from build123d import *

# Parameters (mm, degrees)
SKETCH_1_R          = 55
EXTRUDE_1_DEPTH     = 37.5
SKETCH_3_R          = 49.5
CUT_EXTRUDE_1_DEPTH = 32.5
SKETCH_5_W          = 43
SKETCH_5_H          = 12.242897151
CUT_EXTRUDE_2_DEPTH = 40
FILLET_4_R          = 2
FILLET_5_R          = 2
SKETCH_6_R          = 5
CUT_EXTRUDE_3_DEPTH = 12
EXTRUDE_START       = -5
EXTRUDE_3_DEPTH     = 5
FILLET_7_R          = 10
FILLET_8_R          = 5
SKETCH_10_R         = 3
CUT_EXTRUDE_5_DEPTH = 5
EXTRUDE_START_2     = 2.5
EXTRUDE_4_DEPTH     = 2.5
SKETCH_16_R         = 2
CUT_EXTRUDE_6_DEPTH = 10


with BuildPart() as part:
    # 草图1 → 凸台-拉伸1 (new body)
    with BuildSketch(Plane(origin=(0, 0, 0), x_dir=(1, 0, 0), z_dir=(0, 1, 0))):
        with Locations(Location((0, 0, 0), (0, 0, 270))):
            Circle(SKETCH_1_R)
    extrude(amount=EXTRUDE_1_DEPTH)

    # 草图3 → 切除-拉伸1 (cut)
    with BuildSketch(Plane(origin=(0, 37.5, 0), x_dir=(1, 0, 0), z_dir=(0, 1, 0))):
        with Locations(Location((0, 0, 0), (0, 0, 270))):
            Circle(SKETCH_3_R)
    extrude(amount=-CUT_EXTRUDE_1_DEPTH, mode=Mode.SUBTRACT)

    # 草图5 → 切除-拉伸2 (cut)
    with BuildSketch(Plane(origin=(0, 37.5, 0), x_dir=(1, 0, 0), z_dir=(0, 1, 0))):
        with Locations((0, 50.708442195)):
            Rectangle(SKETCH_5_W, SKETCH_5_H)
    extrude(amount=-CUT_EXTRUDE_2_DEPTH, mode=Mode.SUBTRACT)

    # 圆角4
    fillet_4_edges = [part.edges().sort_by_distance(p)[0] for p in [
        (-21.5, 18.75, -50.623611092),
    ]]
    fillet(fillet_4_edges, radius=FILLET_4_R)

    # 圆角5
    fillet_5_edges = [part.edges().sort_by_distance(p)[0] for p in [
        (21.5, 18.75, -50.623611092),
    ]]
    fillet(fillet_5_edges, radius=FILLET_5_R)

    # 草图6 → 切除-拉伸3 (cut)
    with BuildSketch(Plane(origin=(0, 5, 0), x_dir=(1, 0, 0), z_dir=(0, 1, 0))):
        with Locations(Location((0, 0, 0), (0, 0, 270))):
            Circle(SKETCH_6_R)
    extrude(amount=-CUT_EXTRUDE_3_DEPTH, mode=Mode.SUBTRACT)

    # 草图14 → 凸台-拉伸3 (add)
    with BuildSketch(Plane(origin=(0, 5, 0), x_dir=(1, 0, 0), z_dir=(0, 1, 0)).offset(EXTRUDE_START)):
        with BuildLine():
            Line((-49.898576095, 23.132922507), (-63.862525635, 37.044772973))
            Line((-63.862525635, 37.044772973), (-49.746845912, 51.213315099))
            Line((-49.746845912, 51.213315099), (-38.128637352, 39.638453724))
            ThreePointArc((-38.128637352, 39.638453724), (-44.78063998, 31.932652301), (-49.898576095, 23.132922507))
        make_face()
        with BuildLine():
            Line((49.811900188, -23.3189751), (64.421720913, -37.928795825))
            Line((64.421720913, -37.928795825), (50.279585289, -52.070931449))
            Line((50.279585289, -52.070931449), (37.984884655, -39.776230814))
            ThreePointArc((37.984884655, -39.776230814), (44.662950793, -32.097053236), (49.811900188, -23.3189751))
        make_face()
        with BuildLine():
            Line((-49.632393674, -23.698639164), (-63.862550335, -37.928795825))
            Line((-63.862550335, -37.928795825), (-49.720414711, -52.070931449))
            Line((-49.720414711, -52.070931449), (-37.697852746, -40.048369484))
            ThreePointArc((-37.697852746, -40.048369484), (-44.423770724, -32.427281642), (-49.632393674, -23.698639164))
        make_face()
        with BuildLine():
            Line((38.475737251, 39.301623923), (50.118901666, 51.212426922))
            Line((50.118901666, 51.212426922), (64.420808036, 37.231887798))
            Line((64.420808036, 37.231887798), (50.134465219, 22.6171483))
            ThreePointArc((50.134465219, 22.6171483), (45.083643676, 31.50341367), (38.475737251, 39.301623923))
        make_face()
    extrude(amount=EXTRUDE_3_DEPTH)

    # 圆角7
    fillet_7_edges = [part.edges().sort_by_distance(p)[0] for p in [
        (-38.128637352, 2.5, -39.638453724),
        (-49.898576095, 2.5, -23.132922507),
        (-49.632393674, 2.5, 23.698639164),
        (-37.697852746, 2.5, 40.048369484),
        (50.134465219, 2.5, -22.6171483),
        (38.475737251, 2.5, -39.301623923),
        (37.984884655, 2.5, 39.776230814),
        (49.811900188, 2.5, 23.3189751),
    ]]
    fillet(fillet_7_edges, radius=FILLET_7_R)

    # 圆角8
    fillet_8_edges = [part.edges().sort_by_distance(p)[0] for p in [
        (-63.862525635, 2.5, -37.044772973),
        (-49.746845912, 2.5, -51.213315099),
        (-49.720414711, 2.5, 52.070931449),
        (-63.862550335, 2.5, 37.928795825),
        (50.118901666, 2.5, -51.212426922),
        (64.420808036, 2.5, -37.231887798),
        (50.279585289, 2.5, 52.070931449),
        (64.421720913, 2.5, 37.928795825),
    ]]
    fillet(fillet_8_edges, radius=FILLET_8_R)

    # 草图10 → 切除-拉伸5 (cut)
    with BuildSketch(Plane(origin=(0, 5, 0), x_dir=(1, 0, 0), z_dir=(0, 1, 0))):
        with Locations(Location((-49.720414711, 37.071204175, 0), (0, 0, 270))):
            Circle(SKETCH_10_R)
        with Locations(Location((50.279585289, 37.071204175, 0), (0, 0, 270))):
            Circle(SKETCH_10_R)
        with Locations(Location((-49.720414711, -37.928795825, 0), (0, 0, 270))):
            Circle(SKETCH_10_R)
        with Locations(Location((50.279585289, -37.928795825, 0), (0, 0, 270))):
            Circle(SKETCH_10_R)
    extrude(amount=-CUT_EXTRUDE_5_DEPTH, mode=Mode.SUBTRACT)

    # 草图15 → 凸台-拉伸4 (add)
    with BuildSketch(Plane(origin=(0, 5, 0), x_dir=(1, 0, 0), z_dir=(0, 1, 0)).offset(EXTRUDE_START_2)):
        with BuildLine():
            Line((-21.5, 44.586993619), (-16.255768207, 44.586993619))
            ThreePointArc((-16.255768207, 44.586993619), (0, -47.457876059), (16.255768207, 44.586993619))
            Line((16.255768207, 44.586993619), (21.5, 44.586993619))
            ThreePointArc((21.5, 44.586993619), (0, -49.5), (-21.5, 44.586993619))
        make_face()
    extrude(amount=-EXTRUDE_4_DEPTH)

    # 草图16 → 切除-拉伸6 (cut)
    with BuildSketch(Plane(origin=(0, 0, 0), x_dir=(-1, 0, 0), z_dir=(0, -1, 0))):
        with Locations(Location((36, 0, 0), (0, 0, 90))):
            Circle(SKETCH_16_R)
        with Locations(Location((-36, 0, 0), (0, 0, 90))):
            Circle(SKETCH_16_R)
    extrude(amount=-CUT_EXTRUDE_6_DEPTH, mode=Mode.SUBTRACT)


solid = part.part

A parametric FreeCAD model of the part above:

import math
import FreeCAD as App
import Part
import Sketcher


def edges_at(feature, points):
    """Names of the edges that pass closest to the given points."""
    edges = feature.Shape.Edges
    near = lambda p: min(range(len(edges)), key=lambda i: edges[i].distToShape(Part.Vertex(*p))[0])
    return sorted({f"Edge{near(p) + 1}" for p in points})


def add_polygon(sketch, points):
    """Adds a closed chain of lines whose ends are joined by coincident constraints."""
    first, n = sketch.GeometryCount, len(points)
    for a, b in zip(points, points[1:] + points[:1]):
        sketch.addGeometry(Part.LineSegment(App.Vector(*a, 0), App.Vector(*b, 0)), False)
    for i in range(n):
        sketch.addConstraint(Sketcher.Constraint("Coincident", first + i, 2, first + (i + 1) % n, 1))

doc = App.newDocument("Part")
body = doc.addObject("PartDesign::Body", "Body")

sketch1 = body.newObject("Sketcher::SketchObject", "Sketch")
sketch1.AttachmentSupport = (doc.getObject("XZ_Plane"), [""])
sketch1.MapMode = "FlatFace"
sketch1.addGeometry(Part.Circle(App.Vector(0, 0, 0), App.Vector(0, 0, 1), 55), False)
sketch1.addConstraint(Sketcher.Constraint("Coincident", 0, 3, -1, 1))
sketch1.addConstraint(Sketcher.Constraint("Diameter", 0, 110.0))
pad1 = body.newObject("PartDesign::Pad", "Pad")
pad1.Profile = sketch1
pad1.Length = 37.5
pad1.Reversed = True

sketch2 = body.newObject("Sketcher::SketchObject", "Sketch001")
sketch2.AttachmentSupport = (doc.getObject("XZ_Plane"), [""])
sketch2.MapMode = "FlatFace"
sketch2.AttachmentOffset = App.Placement(App.Vector(0, 0, -37.5), App.Rotation())
sketch2.addGeometry(Part.Circle(App.Vector(0, 0, 0), App.Vector(0, 0, 1), 50), False)
sketch2.addConstraint(Sketcher.Constraint("Coincident", 0, 3, -1, 1))
sketch2.addConstraint(Sketcher.Constraint("Diameter", 0, 99.0))
pocket1 = body.newObject("PartDesign::Pocket", "Pocket")
pocket1.Profile = sketch2
pocket1.Length = 32.5
pocket1.Reversed = True

sketch3 = body.newObject("Sketcher::SketchObject", "Sketch002")
sketch3.AttachmentSupport = (doc.getObject("XZ_Plane"), [""])
sketch3.MapMode = "FlatFace"
sketch3.AttachmentOffset = App.Placement(App.Vector(0, 0, -37.5), App.Rotation())
add_polygon(sketch3, [(-22, -57), (-22, -45), (22, -45), (22, -57)])
sketch3.addConstraint(Sketcher.Constraint("Vertical", 0))
sketch3.addConstraint(Sketcher.Constraint("Horizontal", 1))
sketch3.addConstraint(Sketcher.Constraint("Vertical", 2))
sketch3.addConstraint(Sketcher.Constraint("Horizontal", 3))
sketch3.addConstraint(Sketcher.Constraint("DistanceX", 1, 1, 1, 2, 43.0))
sketch3.addConstraint(Sketcher.Constraint("DistanceX", 0, 2, -1, 1, 21.5))
sketch3.addConstraint(Sketcher.Constraint("DistanceY", 0, 1, 0, 2, 12.242897))
sketch3.addConstraint(Sketcher.Constraint("DistanceY", 2, 2, -1, 1, 56.829891))
pocket2 = body.newObject("PartDesign::Pocket", "Pocket001")
pocket2.Profile = sketch3
pocket2.Length = 40
pocket2.Reversed = True
doc.recompute()

fillet = body.newObject("PartDesign::Fillet", "Fillet")
fillet.Base = (pocket2, edges_at(pocket2, [(-21.5, 18.75, -50.624)]))
fillet.Radius = 2
doc.recompute()

fillet2 = body.newObject("PartDesign::Fillet", "Fillet001")
fillet2.Base = (fillet, edges_at(fillet, [(21.5, 18.75, -50.624)]))
fillet2.Radius = 2

sketch4 = body.newObject("Sketcher::SketchObject", "Sketch003")
sketch4.AttachmentSupport = (doc.getObject("XZ_Plane"), [""])
sketch4.MapMode = "FlatFace"
sketch4.AttachmentOffset = App.Placement(App.Vector(0, 0, -5), App.Rotation())
sketch4.addGeometry(Part.Circle(App.Vector(0, 0, 0), App.Vector(0, 0, 1), 5), False)
sketch4.addConstraint(Sketcher.Constraint("Coincident", 0, 3, -1, 1))
sketch4.addConstraint(Sketcher.Constraint("Diameter", 0, 10.0))
pocket3 = body.newObject("PartDesign::Pocket", "Pocket002")
pocket3.Profile = sketch4
pocket3.Length = 12
pocket3.Reversed = True

sketch5 = body.newObject("Sketcher::SketchObject", "Sketch004")
sketch5.AttachmentSupport = (doc.getObject("XZ_Plane"), [""])
sketch5.MapMode = "FlatFace"
sketch5.addGeometry(Part.LineSegment(App.Vector(-64, -37, 0), App.Vector(-50, -23, 0)), False)
sketch5.addGeometry(Part.ArcOfCircle(Part.Circle(App.Vector(0, 0, 0), App.Vector(0, 0, 1), 55), math.radians(-155), math.radians(-134)), False)
sketch5.addGeometry(Part.LineSegment(App.Vector(-38, -40, 0), App.Vector(-50, -51, 0)), False)
sketch5.addGeometry(Part.LineSegment(App.Vector(-50, -51, 0), App.Vector(-64, -37, 0)), False)
sketch5.addGeometry(Part.LineSegment(App.Vector(64, 38, 0), App.Vector(50, 23, 0)), False)
sketch5.addGeometry(Part.ArcOfCircle(Part.Circle(App.Vector(0, 0, 0), App.Vector(0, 0, 1), 55), math.radians(25), math.radians(46)), False)
sketch5.addGeometry(Part.LineSegment(App.Vector(38, 40, 0), App.Vector(50, 52, 0)), False)
sketch5.addGeometry(Part.LineSegment(App.Vector(50, 52, 0), App.Vector(64, 38, 0)), False)
sketch5.addGeometry(Part.LineSegment(App.Vector(-50, 24, 0), App.Vector(-64, 38, 0)), False)
sketch5.addGeometry(Part.LineSegment(App.Vector(-64, 38, 0), App.Vector(-50, 52, 0)), False)
sketch5.addGeometry(Part.LineSegment(App.Vector(-50, 52, 0), App.Vector(-38, 40, 0)), False)
sketch5.addGeometry(Part.ArcOfCircle(Part.Circle(App.Vector(0, 0, 0), App.Vector(0, 0, 1), 55), math.radians(133), math.radians(154)), False)
sketch5.addGeometry(Part.LineSegment(App.Vector(50, -51, 0), App.Vector(38, -39, 0)), False)
sketch5.addGeometry(Part.ArcOfCircle(Part.Circle(App.Vector(0, 0, 0), App.Vector(0, 0, 1), 55), math.radians(-46), math.radians(-24)), False)
sketch5.addGeometry(Part.LineSegment(App.Vector(50, -23, 0), App.Vector(64, -37, 0)), False)
sketch5.addGeometry(Part.LineSegment(App.Vector(64, -37, 0), App.Vector(50, -51, 0)), False)
sketch5.addConstraint(Sketcher.Constraint("Coincident", 0, 2, 1, 1))
sketch5.addConstraint(Sketcher.Constraint("Coincident", 1, 2, 2, 1))
sketch5.addConstraint(Sketcher.Constraint("Coincident", 2, 2, 3, 1))
sketch5.addConstraint(Sketcher.Constraint("Coincident", 3, 2, 0, 1))
sketch5.addConstraint(Sketcher.Constraint("Coincident", 4, 2, 5, 1))
sketch5.addConstraint(Sketcher.Constraint("Coincident", 5, 2, 6, 1))
sketch5.addConstraint(Sketcher.Constraint("Coincident", 6, 2, 7, 1))
sketch5.addConstraint(Sketcher.Constraint("Coincident", 7, 2, 4, 1))
sketch5.addConstraint(Sketcher.Constraint("Coincident", 8, 2, 9, 1))
sketch5.addConstraint(Sketcher.Constraint("Coincident", 9, 2, 10, 1))
sketch5.addConstraint(Sketcher.Constraint("Coincident", 10, 2, 11, 1))
sketch5.addConstraint(Sketcher.Constraint("Coincident", 11, 2, 8, 1))
sketch5.addConstraint(Sketcher.Constraint("Coincident", 12, 2, 13, 1))
sketch5.addConstraint(Sketcher.Constraint("Coincident", 13, 2, 14, 1))
sketch5.addConstraint(Sketcher.Constraint("Coincident", 14, 2, 15, 1))
sketch5.addConstraint(Sketcher.Constraint("Coincident", 15, 2, 12, 1))
sketch5.addConstraint(Sketcher.Constraint("Coincident", 1, 3, -1, 1))
sketch5.addConstraint(Sketcher.Constraint("Coincident", 5, 3, -1, 1))
sketch5.addConstraint(Sketcher.Constraint("Coincident", 11, 3, -1, 1))
sketch5.addConstraint(Sketcher.Constraint("Coincident", 13, 3, -1, 1))
sketch5.addConstraint(Sketcher.Constraint("Equal", 1, 5))
sketch5.addConstraint(Sketcher.Constraint("Equal", 5, 11))
sketch5.addConstraint(Sketcher.Constraint("Equal", 11, 13))
sketch5.addConstraint(Sketcher.Constraint("Parallel", 0, 2))
sketch5.addConstraint(Sketcher.Constraint("Perpendicular", 2, 3))
sketch5.addConstraint(Sketcher.Constraint("Parallel", 4, 6))
sketch5.addConstraint(Sketcher.Constraint("Perpendicular", 6, 7))
sketch5.addConstraint(Sketcher.Constraint("Parallel", 7, 8))
sketch5.addConstraint(Sketcher.Constraint("Perpendicular", 8, 9))
sketch5.addConstraint(Sketcher.Constraint("Perpendicular", 9, 10))
sketch5.addConstraint(Sketcher.Constraint("Parallel", 12, 14))
sketch5.addConstraint(Sketcher.Constraint("Perpendicular", 14, 15))
sketch5.addConstraint(Sketcher.Constraint("Horizontal", 7, 2, 8, 2))
sketch5.addConstraint(Sketcher.Constraint("Horizontal", 6, 2, 9, 2))
sketch5.addConstraint(Sketcher.Constraint("Equal", 3, 7))
sketch5.addConstraint(Sketcher.Constraint("Equal", 7, 9))
sketch5.addConstraint(Sketcher.Constraint("Equal", 9, 15))
sketch5.addConstraint(Sketcher.Constraint("Radius", 1, 55.0))
sketch5.addConstraint(Sketcher.Constraint("Distance", 3, 20.0))
sketch5.addConstraint(Sketcher.Constraint("Distance", 0, 19.711202))
sketch5.addConstraint(Sketcher.Constraint("DistanceX", -1, 1, 4, 2, 49.8119))
sketch5.addConstraint(Sketcher.Constraint("DistanceX", -1, 1, 15, 2, 50.118902))
sketch5.addConstraint(Sketcher.Constraint("DistanceX", 5, 2, 6, 2, 12.294701))
sketch5.addConstraint(Sketcher.Constraint("DistanceY", 12, 2, 4, 2, 62.620599))
sketch5.addConstraint(Sketcher.Constraint("Distance", 8, 20.124481))
sketch5.addConstraint(Sketcher.Constraint("Distance", 14, 20.437471))
sketch5.addConstraint(Sketcher.Constraint("DistanceX", 0, 2, 1, 2, 11.769939))
sketch5.addConstraint(Sketcher.Constraint("DistanceY", 1, 2, 0, 2, 16.505531))
pad2 = body.newObject("PartDesign::Pad", "Pad001")
pad2.Profile = sketch5
pad2.Length = 5
pad2.Reversed = True
doc.recompute()

fillet3 = body.newObject("PartDesign::Fillet", "Fillet002")
fillet3.Base = (pad2, edges_at(pad2, [
    (-38.129, 2.5, -39.638),
    (-49.899, 2.5, -23.133),
    (-49.632, 2.5, 23.699),
    (-37.698, 2.5, 40.048),
    (50.134, 2.5, -22.617),
    (38.476, 2.5, -39.302),
    (37.985, 2.5, 39.776),
    (49.812, 2.5, 23.319),
]))
fillet3.Radius = 10
doc.recompute()

fillet4 = body.newObject("PartDesign::Fillet", "Fillet003")
fillet4.Base = (fillet3, edges_at(fillet3, [
    (-63.863, 2.5, -37.045),
    (-49.747, 2.5, -51.213),
    (-49.72, 2.5, 52.071),
    (-63.863, 2.5, 37.929),
    (50.119, 2.5, -51.212),
    (64.421, 2.5, -37.232),
    (50.28, 2.5, 52.071),
    (64.422, 2.5, 37.929),
]))
fillet4.Radius = 5

sketch6 = body.newObject("Sketcher::SketchObject", "Sketch005")
sketch6.AttachmentSupport = (doc.getObject("XZ_Plane"), [""])
sketch6.MapMode = "FlatFace"
sketch6.AttachmentOffset = App.Placement(App.Vector(0, 0, -5), App.Rotation())
sketch6.addGeometry(Part.Circle(App.Vector(-49.7, -37.1, 0), App.Vector(0, 0, 1), 3), False)
sketch6.addGeometry(Part.Circle(App.Vector(50.3, -37.1, 0), App.Vector(0, 0, 1), 3), False)
sketch6.addGeometry(Part.Circle(App.Vector(-49.7, 37.9, 0), App.Vector(0, 0, 1), 3), False)
sketch6.addGeometry(Part.Circle(App.Vector(50.3, 37.9, 0), App.Vector(0, 0, 1), 3), False)
sketch6.addConstraint(Sketcher.Constraint("Equal", 0, 1))
sketch6.addConstraint(Sketcher.Constraint("Equal", 1, 2))
sketch6.addConstraint(Sketcher.Constraint("Equal", 2, 3))
sketch6.addConstraint(Sketcher.Constraint("Horizontal", 0, 3, 1, 3))
sketch6.addConstraint(Sketcher.Constraint("Horizontal", 2, 3, 3, 3))
sketch6.addConstraint(Sketcher.Constraint("Vertical", 0, 3, 2, 3))
sketch6.addConstraint(Sketcher.Constraint("Vertical", 1, 3, 3, 3))
sketch6.addConstraint(Sketcher.Constraint("Diameter", 0, 6.0))
sketch6.addConstraint(Sketcher.Constraint("DistanceX", 0, 3, 1, 3, 100.0))
sketch6.addConstraint(Sketcher.Constraint("DistanceY", 0, 3, 2, 3, 75.0))
sketch6.addConstraint(Sketcher.Constraint("DistanceX", 0, 3, -1, 1, 49.720415))
sketch6.addConstraint(Sketcher.Constraint("DistanceY", 0, 3, -1, 1, 37.071204))
pocket4 = body.newObject("PartDesign::Pocket", "Pocket003")
pocket4.Profile = sketch6
pocket4.Length = 5
pocket4.Reversed = True

sketch7 = body.newObject("Sketcher::SketchObject", "Sketch006")
sketch7.AttachmentSupport = (doc.getObject("XZ_Plane"), [""])
sketch7.MapMode = "FlatFace"
sketch7.AttachmentOffset = App.Placement(App.Vector(0, 0, -7.5), App.Rotation())
sketch7.addGeometry(Part.LineSegment(App.Vector(-16, -45, 0), App.Vector(-22, -45, 0)), False)
sketch7.addGeometry(Part.ArcOfCircle(Part.Circle(App.Vector(0, 0, 0), App.Vector(0, 0, 1), 50), math.radians(-64), math.radians(244)), False)
sketch7.addGeometry(Part.LineSegment(App.Vector(22, -45, 0), App.Vector(16, -45, 0)), False)
sketch7.addGeometry(Part.ArcOfCircle(Part.Circle(App.Vector(0, 0, 0), App.Vector(0, 0, 1), 47), math.radians(-70), math.radians(250)), False)
sketch7.addConstraint(Sketcher.Constraint("Coincident", 0, 2, 1, 2))
sketch7.addConstraint(Sketcher.Constraint("Coincident", 1, 1, 2, 1))
sketch7.addConstraint(Sketcher.Constraint("Coincident", 2, 2, 3, 1))
sketch7.addConstraint(Sketcher.Constraint("Coincident", 3, 2, 0, 1))
sketch7.addConstraint(Sketcher.Constraint("Horizontal", 0))
sketch7.addConstraint(Sketcher.Constraint("Horizontal", 2))
sketch7.addConstraint(Sketcher.Constraint("Coincident", 1, 3, -1, 1))
sketch7.addConstraint(Sketcher.Constraint("Coincident", 3, 3, -1, 1))
sketch7.addConstraint(Sketcher.Constraint("Horizontal", 0, 2, 1, 1))
sketch7.addConstraint(Sketcher.Constraint("Radius", 1, 49.5))
sketch7.addConstraint(Sketcher.Constraint("DistanceX", 0, 2, 1, 1, 43.0))
sketch7.addConstraint(Sketcher.Constraint("Radius", 3, 47.457876))
pad3 = body.newObject("PartDesign::Pad", "Pad002")
pad3.Profile = sketch7
pad3.Length = 2.5

sketch8 = body.newObject("Sketcher::SketchObject", "Sketch007")
sketch8.AttachmentSupport = (doc.getObject("XZ_Plane"), [""])
sketch8.MapMode = "FlatFace"
sketch8.addGeometry(Part.Circle(App.Vector(-36, 0, 0), App.Vector(0, 0, 1), 2), False)
sketch8.addGeometry(Part.Circle(App.Vector(36, 0, 0), App.Vector(0, 0, 1), 2), False)
sketch8.addConstraint(Sketcher.Constraint("Equal", 0, 1))
sketch8.addConstraint(Sketcher.Constraint("Symmetric", 0, 3, 1, 3, -1, 1))
sketch8.addConstraint(Sketcher.Constraint("PointOnObject", 0, 3, -1))
sketch8.addConstraint(Sketcher.Constraint("Diameter", 0, 4.0))
sketch8.addConstraint(Sketcher.Constraint("DistanceX", 0, 3, -1, 1, 36.0))
pocket5 = body.newObject("PartDesign::Pocket", "Pocket004")
pocket5.Profile = sketch8
pocket5.Length = 10

doc.recompute()
